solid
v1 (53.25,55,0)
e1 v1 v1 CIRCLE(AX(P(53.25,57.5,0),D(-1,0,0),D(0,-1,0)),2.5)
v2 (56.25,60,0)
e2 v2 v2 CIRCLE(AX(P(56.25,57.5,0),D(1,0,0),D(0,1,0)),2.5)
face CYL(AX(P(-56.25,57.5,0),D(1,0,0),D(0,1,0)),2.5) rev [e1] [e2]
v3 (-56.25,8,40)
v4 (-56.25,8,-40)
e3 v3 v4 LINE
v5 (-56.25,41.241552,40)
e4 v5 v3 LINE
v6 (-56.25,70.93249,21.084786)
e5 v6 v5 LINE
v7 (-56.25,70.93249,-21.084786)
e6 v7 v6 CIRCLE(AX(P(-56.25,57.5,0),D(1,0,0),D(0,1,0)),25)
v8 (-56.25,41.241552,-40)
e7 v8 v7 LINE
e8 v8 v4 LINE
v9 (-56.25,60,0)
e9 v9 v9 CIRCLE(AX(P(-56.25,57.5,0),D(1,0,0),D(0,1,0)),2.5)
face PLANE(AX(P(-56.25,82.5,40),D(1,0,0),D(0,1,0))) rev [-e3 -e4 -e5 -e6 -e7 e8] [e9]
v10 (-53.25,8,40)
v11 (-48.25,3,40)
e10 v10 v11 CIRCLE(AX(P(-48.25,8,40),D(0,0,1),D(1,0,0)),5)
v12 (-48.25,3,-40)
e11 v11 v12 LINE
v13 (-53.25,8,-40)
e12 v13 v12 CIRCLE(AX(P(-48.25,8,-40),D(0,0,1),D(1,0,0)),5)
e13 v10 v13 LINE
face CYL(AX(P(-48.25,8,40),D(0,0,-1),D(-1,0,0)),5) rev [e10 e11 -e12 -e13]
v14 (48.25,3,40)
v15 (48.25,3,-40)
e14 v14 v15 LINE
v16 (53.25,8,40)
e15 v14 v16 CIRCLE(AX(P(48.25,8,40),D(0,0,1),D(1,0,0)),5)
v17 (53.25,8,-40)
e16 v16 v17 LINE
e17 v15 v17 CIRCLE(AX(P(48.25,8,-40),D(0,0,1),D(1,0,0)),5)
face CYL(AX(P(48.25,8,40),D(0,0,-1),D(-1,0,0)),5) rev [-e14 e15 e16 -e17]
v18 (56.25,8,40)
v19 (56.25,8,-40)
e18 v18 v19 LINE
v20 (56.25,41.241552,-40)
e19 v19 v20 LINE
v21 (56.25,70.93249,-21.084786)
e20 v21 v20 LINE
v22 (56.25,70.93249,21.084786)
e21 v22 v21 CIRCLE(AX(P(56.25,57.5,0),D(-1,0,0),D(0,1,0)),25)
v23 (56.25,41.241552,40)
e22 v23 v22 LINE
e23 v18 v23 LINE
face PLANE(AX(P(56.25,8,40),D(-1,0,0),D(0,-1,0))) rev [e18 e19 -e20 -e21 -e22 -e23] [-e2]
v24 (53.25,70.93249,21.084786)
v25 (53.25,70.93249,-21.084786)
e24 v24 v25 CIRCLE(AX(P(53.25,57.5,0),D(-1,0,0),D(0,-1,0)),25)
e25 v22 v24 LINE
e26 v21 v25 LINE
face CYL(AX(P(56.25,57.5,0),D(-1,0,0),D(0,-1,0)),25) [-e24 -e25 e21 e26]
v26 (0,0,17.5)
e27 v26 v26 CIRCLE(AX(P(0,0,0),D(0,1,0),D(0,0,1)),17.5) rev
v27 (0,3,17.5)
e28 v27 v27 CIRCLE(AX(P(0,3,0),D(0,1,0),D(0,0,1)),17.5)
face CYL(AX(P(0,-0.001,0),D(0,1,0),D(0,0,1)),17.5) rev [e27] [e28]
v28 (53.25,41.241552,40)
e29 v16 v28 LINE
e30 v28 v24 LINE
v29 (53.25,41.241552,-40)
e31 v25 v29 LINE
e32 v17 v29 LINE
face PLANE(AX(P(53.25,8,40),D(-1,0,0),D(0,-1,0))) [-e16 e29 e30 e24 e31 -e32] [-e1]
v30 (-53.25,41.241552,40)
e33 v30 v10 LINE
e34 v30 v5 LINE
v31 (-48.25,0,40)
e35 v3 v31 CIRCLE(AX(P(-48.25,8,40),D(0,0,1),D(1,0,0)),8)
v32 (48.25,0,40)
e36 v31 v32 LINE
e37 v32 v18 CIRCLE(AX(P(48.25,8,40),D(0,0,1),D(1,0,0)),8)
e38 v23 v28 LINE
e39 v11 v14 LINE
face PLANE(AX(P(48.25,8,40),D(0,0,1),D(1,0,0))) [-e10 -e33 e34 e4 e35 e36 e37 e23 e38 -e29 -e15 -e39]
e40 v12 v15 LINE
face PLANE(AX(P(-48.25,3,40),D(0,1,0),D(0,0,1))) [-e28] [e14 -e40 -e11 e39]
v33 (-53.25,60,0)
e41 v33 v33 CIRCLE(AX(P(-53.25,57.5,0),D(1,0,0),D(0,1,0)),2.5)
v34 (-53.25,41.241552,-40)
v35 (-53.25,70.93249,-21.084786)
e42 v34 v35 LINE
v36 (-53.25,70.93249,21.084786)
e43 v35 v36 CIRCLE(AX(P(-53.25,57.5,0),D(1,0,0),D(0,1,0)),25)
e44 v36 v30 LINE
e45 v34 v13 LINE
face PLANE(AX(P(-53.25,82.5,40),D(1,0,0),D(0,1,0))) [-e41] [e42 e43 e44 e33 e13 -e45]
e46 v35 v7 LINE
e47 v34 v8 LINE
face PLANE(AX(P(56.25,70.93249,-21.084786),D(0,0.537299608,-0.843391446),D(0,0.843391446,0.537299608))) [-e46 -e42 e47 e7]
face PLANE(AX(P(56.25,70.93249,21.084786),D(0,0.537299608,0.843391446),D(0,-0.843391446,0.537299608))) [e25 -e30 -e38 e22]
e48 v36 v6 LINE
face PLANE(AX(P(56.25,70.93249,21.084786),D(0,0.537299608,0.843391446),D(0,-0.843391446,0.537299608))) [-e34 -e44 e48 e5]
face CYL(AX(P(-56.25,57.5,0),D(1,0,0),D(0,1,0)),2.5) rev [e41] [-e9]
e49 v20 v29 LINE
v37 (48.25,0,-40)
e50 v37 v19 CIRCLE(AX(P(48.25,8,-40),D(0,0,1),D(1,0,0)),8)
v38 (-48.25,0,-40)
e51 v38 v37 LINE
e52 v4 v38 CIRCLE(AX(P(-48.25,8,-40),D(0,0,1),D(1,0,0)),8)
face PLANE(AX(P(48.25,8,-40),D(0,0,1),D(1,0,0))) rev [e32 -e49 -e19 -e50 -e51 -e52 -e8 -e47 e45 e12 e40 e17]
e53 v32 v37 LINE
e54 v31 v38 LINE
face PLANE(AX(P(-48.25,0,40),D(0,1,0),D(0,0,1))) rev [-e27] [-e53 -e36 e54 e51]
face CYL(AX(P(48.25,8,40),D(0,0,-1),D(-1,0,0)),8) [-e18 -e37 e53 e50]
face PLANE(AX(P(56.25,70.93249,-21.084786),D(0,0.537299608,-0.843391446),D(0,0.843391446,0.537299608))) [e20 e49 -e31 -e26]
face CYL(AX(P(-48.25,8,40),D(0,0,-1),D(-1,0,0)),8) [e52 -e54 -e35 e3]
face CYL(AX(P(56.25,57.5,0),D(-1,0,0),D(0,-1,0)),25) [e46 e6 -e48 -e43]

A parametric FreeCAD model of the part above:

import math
import FreeCAD as App
import Part
import Sketcher
from FreeCAD import Vector
Q = App.Units.Quantity

doc = App.newDocument("Part")
body = doc.addObject("PartDesign::Body", "Body")

sketch1 = body.newObject("Sketcher::SketchObject", "Sketch")
sketch1.AttachmentSupport = (doc.getObject("XY_Plane"), [""])
sketch1.MapMode = "FlatFace"
sketch1.addGeometry([
    Part.LineSegment(Vector(-56.25, 82.5, 0), Vector(-56.25, 8, 0)),
    Part.ArcOfCircle(Part.Circle(Vector(-48.25, 8, 0), Vector(0, 0, 1), 8), math.radians(-180), math.radians(-90)),
    Part.LineSegment(Vector(-48.25, 0, 0), Vector(48.25, 0, 0)),
    Part.ArcOfCircle(Part.Circle(Vector(48.25, 8, 0), Vector(0, 0, 1), 8), math.radians(-90), math.radians(0)),
    Part.LineSegment(Vector(56.25, 8, 0), Vector(56.25, 82.5, 0)),
    Part.LineSegment(Vector(56.25, 82.5, 0), Vector(53.25, 82.5, 0)),
    Part.LineSegment(Vector(53.25, 82.5, 0), Vector(53.25, 8, 0)),
    Part.ArcOfCircle(Part.Circle(Vector(48.25, 8, 0), Vector(0, 0, 1), 5), math.radians(-90), math.radians(0)),
    Part.LineSegment(Vector(48.25, 3, 0), Vector(-48.25, 3, 0)),
    Part.ArcOfCircle(Part.Circle(Vector(-48.25, 8, 0), Vector(0, 0, 1), 5), math.radians(180), math.radians(270)),
    Part.LineSegment(Vector(-53.25, 8, 0), Vector(-53.25, 82.5, 0)),
    Part.LineSegment(Vector(-53.25, 82.5, 0), Vector(-56.25, 82.5, 0)),
], False)
sketch1.addConstraint([
    Sketcher.Constraint("Tangent", 0, 2, 1, 1),
    Sketcher.Constraint("Tangent", 1, 2, 2, 1),
    Sketcher.Constraint("Tangent", 2, 2, 3, 1),
    Sketcher.Constraint("Tangent", 3, 2, 4, 1),
    Sketcher.Constraint("Coincident", 4, 2, 5, 1),
    Sketcher.Constraint("Coincident", 5, 2, 6, 1),
    Sketcher.Constraint("Tangent", 6, 2, 7, 2),
    Sketcher.Constraint("Tangent", 7, 1, 8, 1),
    Sketcher.Constraint("Tangent", 8, 2, 9, 2),
    Sketcher.Constraint("Tangent", 9, 1, 10, 1),
    Sketcher.Constraint("Coincident", 10, 2, 11, 1),
    Sketcher.Constraint("Coincident", 11, 2, 0, 1),
    Sketcher.Constraint("Vertical", 0),
    Sketcher.Constraint("Horizontal", 2),
    Sketcher.Constraint("Vertical", 4),
    Sketcher.Constraint("Horizontal", 5),
    Sketcher.Constraint("Vertical", 6),
    Sketcher.Constraint("Horizontal", 8),
    Sketcher.Constraint("Vertical", 10),
    Sketcher.Constraint("Horizontal", 11),
    Sketcher.Constraint("Coincident", 7, 3, 3, 3),
    Sketcher.Constraint("Coincident", 9, 3, 1, 3),
    Sketcher.Constraint("Equal", 1, 3),
    Sketcher.Constraint("Symmetric", 1, 2, 2, 2, -1, 1),
    Sketcher.Constraint("Horizontal", 5, 2, 10, 2),
    Sketcher.Constraint("Radius", 1, Q("8 mm")),
    Sketcher.Constraint("Radius", 7, Q("5 mm")),
    Sketcher.Constraint("DistanceX", 2, 1, 2, 2, Q("96.5 mm")),
    Sketcher.Constraint("DistanceY", 0, 2, 0, 1, Q("74.5 mm")),
])
pad1 = body.newObject("PartDesign::Pad", "Pad")
pad1.Profile = sketch1
pad1.Length = 80
pad1.Midplane = True

sketch2 = body.newObject("Sketcher::SketchObject", "Sketch001")
sketch2.AttachmentSupport = (doc.getObject("XZ_Plane"), [""])
sketch2.MapMode = "FlatFace"
sketch2.AttachmentOffset = App.Placement(Vector(0, 0, -3), App.Rotation())
sketch2.addGeometry(Part.Circle(Vector(0, 0, 0), Vector(0, 0, 1), 17.5), False)
sketch2.addConstraint([
    Sketcher.Constraint("Coincident", 0, 3, -1, 1),
    Sketcher.Constraint("Diameter", 0, Q("35 mm")),
])
pocket1 = body.newObject("PartDesign::Pocket", "Pocket")
pocket1.Profile = sketch2
pocket1.Type = "UpToFirst"
pocket1.Reversed = True

sketch3 = body.newObject("Sketcher::SketchObject", "Sketch002")
sketch3.AttachmentSupport = (doc.getObject("YZ_Plane"), [""])
sketch3.MapMode = "FlatFace"
sketch3.AttachmentOffset = App.Placement(Vector(0, 0, 56.25), App.Rotation())
sketch3.addGeometry([
    Part.LineSegment(Vector(41.241552, 40, 0), Vector(70.93249, 21.084786, 0)),
    Part.ArcOfCircle(Part.Circle(Vector(57.5, 0, 0), Vector(0, 0, 1), 25), math.radians(0), math.radians(57.5)),
    Part.LineSegment(Vector(82.5, 0, 0), Vector(82.5, 40, 0)),
    Part.LineSegment(Vector(82.5, 40, 0), Vector(41.241552, 40, 0)),
    Part.LineSegment(Vector(82.5, -40, 0), Vector(82.5, 0, 0)),
    Part.ArcOfCircle(Part.Circle(Vector(57.5, 0, 0), Vector(0, 0, 1), 25), math.radians(-57.5), math.radians(0)),
    Part.LineSegment(Vector(70.93249, -21.084786, 0), Vector(41.241552, -40, 0)),
    Part.LineSegment(Vector(41.241552, -40, 0), Vector(82.5, -40, 0)),
], False)
sketch3.addConstraint([
    Sketcher.Constraint("Tangent", 0, 2, 1, 2),
    Sketcher.Constraint("Tangent", 1, 1, 2, 1),
    Sketcher.Constraint("Coincident", 2, 2, 3, 1),
    Sketcher.Constraint("Coincident", 3, 2, 0, 1),
    Sketcher.Constraint("Tangent", 4, 2, 5, 2),
    Sketcher.Constraint("Tangent", 5, 1, 6, 1),
    Sketcher.Constraint("Coincident", 6, 2, 7, 1),
    Sketcher.Constraint("Coincident", 7, 2, 4, 1),
    Sketcher.Constraint("Vertical", 2),
    Sketcher.Constraint("Horizontal", 3),
    Sketcher.Constraint("Vertical", 4),
    Sketcher.Constraint("Horizontal", 7),
    Sketcher.Constraint("Coincident", 5, 3, 1, 3),
    Sketcher.Constraint("Equal", 1, 5),
    Sketcher.Constraint("Symmetric", 0, 2, 5, 1, -1),
    Sketcher.Constraint("Vertical", 3, 2, 6, 2),
    Sketcher.Constraint("Radius", 1, Q("25 mm")),
    Sketcher.Constraint("DistanceY", 2, 1, 2, 2, Q("40 mm")),
    Sketcher.Constraint("Angle", 0, Q("-32.5 deg")),
    Sketcher.Constraint("DistanceX", -1, 1, 1, 3, Q("57.5 mm")),
])
pocket2 = body.newObject("PartDesign::Pocket", "Pocket001")
pocket2.Profile = sketch3
pocket2.Type = "ThroughAll"

sketch4 = body.newObject("Sketcher::SketchObject", "Sketch003")
sketch4.AttachmentSupport = (doc.getObject("YZ_Plane"), [""])
sketch4.MapMode = "FlatFace"
sketch4.AttachmentOffset = App.Placement(Vector(0, 0, 56.25), App.Rotation())
sketch4.addGeometry(Part.Circle(Vector(57.5, 0, 0), Vector(0, 0, 1), 2.5), False)
sketch4.addConstraint([
    Sketcher.Constraint("PointOnObject", 0, 3, -1),
    Sketcher.Constraint("Diameter", 0, Q("5 mm")),
    Sketcher.Constraint("DistanceX", -1, 1, 0, 3, Q("57.5 mm")),
])
pocket3 = body.newObject("PartDesign::Pocket", "Pocket002")
pocket3.Profile = sketch4
pocket3.Type = "ThroughAll"

doc.recompute()
